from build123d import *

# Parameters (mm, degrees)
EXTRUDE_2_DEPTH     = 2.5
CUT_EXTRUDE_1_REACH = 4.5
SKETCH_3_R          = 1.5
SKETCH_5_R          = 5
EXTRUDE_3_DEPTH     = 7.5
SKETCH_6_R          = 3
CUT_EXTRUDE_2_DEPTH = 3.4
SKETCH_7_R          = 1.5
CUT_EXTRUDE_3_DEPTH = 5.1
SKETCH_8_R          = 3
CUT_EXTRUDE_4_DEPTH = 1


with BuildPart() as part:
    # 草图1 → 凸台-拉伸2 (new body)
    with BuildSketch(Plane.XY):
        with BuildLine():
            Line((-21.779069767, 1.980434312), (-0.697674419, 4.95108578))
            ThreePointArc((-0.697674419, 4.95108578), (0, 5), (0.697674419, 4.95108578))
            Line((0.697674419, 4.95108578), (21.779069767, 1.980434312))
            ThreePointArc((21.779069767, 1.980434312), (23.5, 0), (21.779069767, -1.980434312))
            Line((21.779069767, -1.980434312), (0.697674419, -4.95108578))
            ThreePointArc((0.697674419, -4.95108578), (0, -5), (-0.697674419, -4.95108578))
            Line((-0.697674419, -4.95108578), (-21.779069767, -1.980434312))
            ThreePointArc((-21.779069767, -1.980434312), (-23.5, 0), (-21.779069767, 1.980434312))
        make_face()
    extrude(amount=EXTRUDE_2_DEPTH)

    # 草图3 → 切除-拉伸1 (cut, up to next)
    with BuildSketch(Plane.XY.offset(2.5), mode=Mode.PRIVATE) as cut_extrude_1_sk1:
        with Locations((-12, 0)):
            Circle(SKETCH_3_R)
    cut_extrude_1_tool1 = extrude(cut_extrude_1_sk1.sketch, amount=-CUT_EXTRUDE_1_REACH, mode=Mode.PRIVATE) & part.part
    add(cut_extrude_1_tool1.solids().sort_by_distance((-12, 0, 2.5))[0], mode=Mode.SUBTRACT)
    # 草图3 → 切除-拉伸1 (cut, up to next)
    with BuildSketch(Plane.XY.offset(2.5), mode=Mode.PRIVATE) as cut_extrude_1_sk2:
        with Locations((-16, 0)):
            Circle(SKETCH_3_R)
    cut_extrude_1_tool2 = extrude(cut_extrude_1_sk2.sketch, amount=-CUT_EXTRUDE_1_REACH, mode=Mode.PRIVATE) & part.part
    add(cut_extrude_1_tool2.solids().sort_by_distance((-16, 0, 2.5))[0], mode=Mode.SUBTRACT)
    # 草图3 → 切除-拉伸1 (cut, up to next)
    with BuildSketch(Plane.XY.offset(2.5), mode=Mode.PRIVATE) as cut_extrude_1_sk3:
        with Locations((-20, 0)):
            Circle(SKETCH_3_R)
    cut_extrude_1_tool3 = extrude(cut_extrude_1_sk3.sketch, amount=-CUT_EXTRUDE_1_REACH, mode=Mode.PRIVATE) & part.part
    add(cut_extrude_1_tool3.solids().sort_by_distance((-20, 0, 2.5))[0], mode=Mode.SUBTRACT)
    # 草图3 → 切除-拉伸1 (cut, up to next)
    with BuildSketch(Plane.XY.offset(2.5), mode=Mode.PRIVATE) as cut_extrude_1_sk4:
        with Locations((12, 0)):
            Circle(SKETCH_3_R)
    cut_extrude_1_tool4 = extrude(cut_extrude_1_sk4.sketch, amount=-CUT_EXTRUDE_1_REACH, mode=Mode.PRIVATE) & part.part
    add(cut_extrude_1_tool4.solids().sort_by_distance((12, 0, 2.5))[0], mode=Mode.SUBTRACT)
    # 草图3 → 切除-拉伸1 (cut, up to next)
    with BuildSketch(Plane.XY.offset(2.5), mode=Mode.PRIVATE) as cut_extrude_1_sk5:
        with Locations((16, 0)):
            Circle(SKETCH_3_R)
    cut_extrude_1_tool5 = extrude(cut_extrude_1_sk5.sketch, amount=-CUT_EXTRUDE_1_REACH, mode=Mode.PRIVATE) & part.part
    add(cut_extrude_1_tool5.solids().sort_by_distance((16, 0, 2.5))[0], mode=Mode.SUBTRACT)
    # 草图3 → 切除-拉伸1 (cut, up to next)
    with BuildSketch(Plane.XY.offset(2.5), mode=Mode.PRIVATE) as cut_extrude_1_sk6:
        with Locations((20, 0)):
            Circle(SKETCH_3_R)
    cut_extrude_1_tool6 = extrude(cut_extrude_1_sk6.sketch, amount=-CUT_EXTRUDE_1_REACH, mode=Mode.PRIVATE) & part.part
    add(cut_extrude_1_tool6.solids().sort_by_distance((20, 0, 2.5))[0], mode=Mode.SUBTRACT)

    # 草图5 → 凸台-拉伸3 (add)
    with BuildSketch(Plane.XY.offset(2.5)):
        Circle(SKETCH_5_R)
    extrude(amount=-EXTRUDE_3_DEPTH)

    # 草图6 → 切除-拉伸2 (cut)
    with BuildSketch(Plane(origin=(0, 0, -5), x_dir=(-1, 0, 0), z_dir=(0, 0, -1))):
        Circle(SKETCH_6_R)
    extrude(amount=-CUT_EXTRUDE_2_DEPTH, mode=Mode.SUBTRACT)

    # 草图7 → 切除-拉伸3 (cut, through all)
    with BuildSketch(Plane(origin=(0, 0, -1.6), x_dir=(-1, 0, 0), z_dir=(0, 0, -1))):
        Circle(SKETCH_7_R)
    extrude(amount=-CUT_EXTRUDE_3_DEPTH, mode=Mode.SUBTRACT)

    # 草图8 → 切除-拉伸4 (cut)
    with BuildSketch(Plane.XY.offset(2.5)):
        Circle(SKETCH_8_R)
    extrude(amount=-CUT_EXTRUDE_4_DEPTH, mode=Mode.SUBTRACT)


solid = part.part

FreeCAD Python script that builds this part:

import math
import FreeCAD as App
import Part
import Sketcher
from FreeCAD import Vector

doc = App.newDocument("Part")
body = doc.addObject("PartDesign::Body", "Body")

# Sketch on XY plane
sketch1 = doc.addObject("Sketcher::SketchObject", "Sketch")
body.addObject(sketch1)
sketch1.AttachmentSupport = (doc.XY_Plane, [""])
sketch1.MapMode = "FlatFace"
sketch1.addGeometry([
    Part.LineSegment(Vector(-0.7, 5, 0), Vector(-21.8, 2, 0)),  # 0
    Part.ArcOfCircle(Part.Circle(Vector(-21.5, 0, 0), Vector(0, 0, 1), 2), math.radians(98), math.radians(262)),  # 1
    Part.LineSegment(Vector(-21.8, -2, 0), Vector(-0.7, -5, 0)),  # 2
    Part.ArcOfCircle(Part.Circle(Vector(0, 0, 0), Vector(0, 0, 1), 5), math.radians(-98.02), math.radians(-81.98)),  # 3
    Part.LineSegment(Vector(0.7, -5, 0), Vector(21.8, -2, 0)),  # 4
    Part.ArcOfCircle(Part.Circle(Vector(21.5, 0, 0), Vector(0, 0, 1), 2), math.radians(-82), math.radians(82)),  # 5
    Part.LineSegment(Vector(21.8, 2, 0), Vector(0.7, 5, 0)),  # 6
    Part.ArcOfCircle(Part.Circle(Vector(0, 0, 0), Vector(0, 0, 1), 5), math.radians(81.98), math.radians(98.02)),  # 7
], False)
sketch1.addConstraint([
    Sketcher.Constraint("Tangent", 0, 2, 1, 1),
    Sketcher.Constraint("Tangent", 1, 2, 2, 1),
    Sketcher.Constraint("Tangent", 2, 2, 3, 1),
    Sketcher.Constraint("Tangent", 3, 2, 4, 1),
    Sketcher.Constraint("Tangent", 4, 2, 5, 1),
    Sketcher.Constraint("Tangent", 5, 2, 6, 1),
    Sketcher.Constraint("Tangent", 6, 2, 7, 1),
    Sketcher.Constraint("Tangent", 7, 2, 0, 1),
    Sketcher.Constraint("Coincident", 3, 3, -1, 1),
    Sketcher.Constraint("Coincident", 7, 3, -1, 1),
    Sketcher.Constraint("Equal", 1, 5),
    Sketcher.Constraint("Equal", 3, 7),
    Sketcher.Constraint("Symmetric", 1, 3, 5, 3, -1, 1),
    Sketcher.Constraint("PointOnObject", 1, 3, -1),
    Sketcher.Constraint("Radius", 1, 2.0),
    Sketcher.Constraint("Radius", 3, 5.0),
    Sketcher.Constraint("DistanceX", 1, 3, 5, 3, 43.0),
])
pad1 = doc.addObject("PartDesign::Pad", "Pad")
body.addObject(pad1)
pad1.Profile = sketch1
pad1.Length = 2.5

# Sketch on XY plane
sketch2 = doc.addObject("Sketcher::SketchObject", "Sketch001")
body.addObject(sketch2)
sketch2.AttachmentSupport = (doc.XY_Plane, [""])
sketch2.MapMode = "FlatFace"
sketch2.AttachmentOffset = App.Placement(Vector(0, 0, 2.5), App.Rotation())
sketch2.addGeometry(Part.Circle(Vector(-12, 0, 0), Vector(0, 0, 1), 1.5), False)
sketch2.addConstraint([
    Sketcher.Constraint("PointOnObject", 0, 3, -1),
    Sketcher.Constraint("Diameter", 0, 3.0),
    Sketcher.Constraint("DistanceX", 0, 3, -1, 1, 12.0),
])
pocket1 = doc.addObject("PartDesign::Pocket", "Pocket")
body.addObject(pocket1)
pocket1.Profile = sketch2
pocket1.Type = "UpToFirst"

# Sketch on XY plane
sketch3 = doc.addObject("Sketcher::SketchObject", "Sketch002")
body.addObject(sketch3)
sketch3.AttachmentSupport = (doc.XY_Plane, [""])
sketch3.MapMode = "FlatFace"
sketch3.AttachmentOffset = App.Placement(Vector(0, 0, 2.5), App.Rotation())
sketch3.addGeometry(Part.Circle(Vector(-16, 0, 0), Vector(0, 0, 1), 1.5), False)
sketch3.addConstraint([
    Sketcher.Constraint("PointOnObject", 0, 3, -1),
    Sketcher.Constraint("Diameter", 0, 3.0),
    Sketcher.Constraint("DistanceX", 0, 3, -1, 1, 16.0),
])
pocket2 = doc.addObject("PartDesign::Pocket", "Pocket001")
body.addObject(pocket2)
pocket2.Profile = sketch3
pocket2.Type = "UpToFirst"

# Sketch on XY plane
sketch4 = doc.addObject("Sketcher::SketchObject", "Sketch003")
body.addObject(sketch4)
sketch4.AttachmentSupport = (doc.XY_Plane, [""])
sketch4.MapMode = "FlatFace"
sketch4.AttachmentOffset = App.Placement(Vector(0, 0, 2.5), App.Rotation())
sketch4.addGeometry(Part.Circle(Vector(-20, 0, 0), Vector(0, 0, 1), 1.5), False)
sketch4.addConstraint([
    Sketcher.Constraint("PointOnObject", 0, 3, -1),
    Sketcher.Constraint("Diameter", 0, 3.0),
    Sketcher.Constraint("DistanceX", 0, 3, -1, 1, 20.0),
])
pocket3 = doc.addObject("PartDesign::Pocket", "Pocket002")
body.addObject(pocket3)
pocket3.Profile = sketch4
pocket3.Type = "UpToFirst"

# Sketch on XY plane
sketch5 = doc.addObject("Sketcher::SketchObject", "Sketch004")
body.addObject(sketch5)
sketch5.AttachmentSupport = (doc.XY_Plane, [""])
sketch5.MapMode = "FlatFace"
sketch5.AttachmentOffset = App.Placement(Vector(0, 0, 2.5), App.Rotation())
sketch5.addGeometry(Part.Circle(Vector(12, 0, 0), Vector(0, 0, 1), 1.5), False)
sketch5.addConstraint([
    Sketcher.Constraint("PointOnObject", 0, 3, -1),
    Sketcher.Constraint("Diameter", 0, 3.0),
    Sketcher.Constraint("DistanceX", -1, 1, 0, 3, 12.0),
])
pocket4 = doc.addObject("PartDesign::Pocket", "Pocket003")
body.addObject(pocket4)
pocket4.Profile = sketch5
pocket4.Type = "UpToFirst"

# Sketch on XY plane
sketch6 = doc.addObject("Sketcher::SketchObject", "Sketch005")
body.addObject(sketch6)
sketch6.AttachmentSupport = (doc.XY_Plane, [""])
sketch6.MapMode = "FlatFace"
sketch6.AttachmentOffset = App.Placement(Vector(0, 0, 2.5), App.Rotation())
sketch6.addGeometry(Part.Circle(Vector(16, 0, 0), Vector(0, 0, 1), 1.5), False)
sketch6.addConstraint([
    Sketcher.Constraint("PointOnObject", 0, 3, -1),
    Sketcher.Constraint("Diameter", 0, 3.0),
    Sketcher.Constraint("DistanceX", -1, 1, 0, 3, 16.0),
])
pocket5 = doc.addObject("PartDesign::Pocket", "Pocket004")
body.addObject(pocket5)
pocket5.Profile = sketch6
pocket5.Type = "UpToFirst"

# Sketch on XY plane
sketch7 = doc.addObject("Sketcher::SketchObject", "Sketch006")
body.addObject(sketch7)
sketch7.AttachmentSupport = (doc.XY_Plane, [""])
sketch7.MapMode = "FlatFace"
sketch7.AttachmentOffset = App.Placement(Vector(0, 0, 2.5), App.Rotation())
sketch7.addGeometry(Part.Circle(Vector(20, 0, 0), Vector(0, 0, 1), 1.5), False)
sketch7.addConstraint([
    Sketcher.Constraint("PointOnObject", 0, 3, -1),
    Sketcher.Constraint("Diameter", 0, 3.0),
    Sketcher.Constraint("DistanceX", -1, 1, 0, 3, 20.0),
])
pocket6 = doc.addObject("PartDesign::Pocket", "Pocket005")
body.addObject(pocket6)
pocket6.Profile = sketch7
pocket6.Type = "UpToFirst"

# Sketch on XY plane
sketch8 = doc.addObject("Sketcher::SketchObject", "Sketch007")
body.addObject(sketch8)
sketch8.AttachmentSupport = (doc.XY_Plane, [""])
sketch8.MapMode = "FlatFace"
sketch8.AttachmentOffset = App.Placement(Vector(0, 0, 2.5), App.Rotation())
sketch8.addGeometry(Part.Circle(Vector(0, 0, 0), Vector(0, 0, 1), 5), False)
sketch8.addConstraint([
    Sketcher.Constraint("Coincident", 0, 3, -1, 1),
    Sketcher.Constraint("Diameter", 0, 10.0),
])
pad2 = doc.addObject("PartDesign::Pad", "Pad001")
body.addObject(pad2)
pad2.Profile = sketch8
pad2.Length = 7.5
pad2.Reversed = True

# Sketch on XY plane
sketch9 = doc.addObject("Sketcher::SketchObject", "Sketch008")
body.addObject(sketch9)
sketch9.AttachmentSupport = (doc.XY_Plane, [""])
sketch9.MapMode = "FlatFace"
sketch9.AttachmentOffset = App.Placement(Vector(0, 0, -5), App.Rotation())
sketch9.addGeometry(Part.Circle(Vector(0, 0, 0), Vector(0, 0, 1), 3), False)
sketch9.addConstraint([
    Sketcher.Constraint("Coincident", 0, 3, -1, 1),
    Sketcher.Constraint("Diameter", 0, 6.0),
])
pocket7 = doc.addObject("PartDesign::Pocket", "Pocket006")
body.addObject(pocket7)
pocket7.Profile = sketch9
pocket7.Length = 3.4
pocket7.Reversed = True

# Sketch on XY plane
sketch10 = doc.addObject("Sketcher::SketchObject", "Sketch009")
body.addObject(sketch10)
sketch10.AttachmentSupport = (doc.XY_Plane, [""])
sketch10.MapMode = "FlatFace"
sketch10.AttachmentOffset = App.Placement(Vector(0, 0, -1.6), App.Rotation())
sketch10.addGeometry(Part.Circle(Vector(0, 0, 0), Vector(0, 0, 1), 1.5), False)
sketch10.addConstraint([
    Sketcher.Constraint("Coincident", 0, 3, -1, 1),
    Sketcher.Constraint("Diameter", 0, 3.0),
])
pocket8 = doc.addObject("PartDesign::Pocket", "Pocket007")
body.addObject(pocket8)
pocket8.Profile = sketch10
pocket8.Type = "ThroughAll"
pocket8.Reversed = True

# Sketch on XY plane
sketch11 = doc.addObject("Sketcher::SketchObject", "Sketch010")
body.addObject(sketch11)
sketch11.AttachmentSupport = (doc.XY_Plane, [""])
sketch11.MapMode = "FlatFace"
sketch11.AttachmentOffset = App.Placement(Vector(0, 0, 2.5), App.Rotation())
sketch11.addGeometry(Part.Circle(Vector(0, 0, 0), Vector(0, 0, 1), 3), False)
sketch11.addConstraint([
    Sketcher.Constraint("Coincident", 0, 3, -1, 1),
    Sketcher.Constraint("Diameter", 0, 6.0),
])
pocket9 = doc.addObject("PartDesign::Pocket", "Pocket008")
body.addObject(pocket9)
pocket9.Profile = sketch11
pocket9.Length = 1

doc.recompute()
